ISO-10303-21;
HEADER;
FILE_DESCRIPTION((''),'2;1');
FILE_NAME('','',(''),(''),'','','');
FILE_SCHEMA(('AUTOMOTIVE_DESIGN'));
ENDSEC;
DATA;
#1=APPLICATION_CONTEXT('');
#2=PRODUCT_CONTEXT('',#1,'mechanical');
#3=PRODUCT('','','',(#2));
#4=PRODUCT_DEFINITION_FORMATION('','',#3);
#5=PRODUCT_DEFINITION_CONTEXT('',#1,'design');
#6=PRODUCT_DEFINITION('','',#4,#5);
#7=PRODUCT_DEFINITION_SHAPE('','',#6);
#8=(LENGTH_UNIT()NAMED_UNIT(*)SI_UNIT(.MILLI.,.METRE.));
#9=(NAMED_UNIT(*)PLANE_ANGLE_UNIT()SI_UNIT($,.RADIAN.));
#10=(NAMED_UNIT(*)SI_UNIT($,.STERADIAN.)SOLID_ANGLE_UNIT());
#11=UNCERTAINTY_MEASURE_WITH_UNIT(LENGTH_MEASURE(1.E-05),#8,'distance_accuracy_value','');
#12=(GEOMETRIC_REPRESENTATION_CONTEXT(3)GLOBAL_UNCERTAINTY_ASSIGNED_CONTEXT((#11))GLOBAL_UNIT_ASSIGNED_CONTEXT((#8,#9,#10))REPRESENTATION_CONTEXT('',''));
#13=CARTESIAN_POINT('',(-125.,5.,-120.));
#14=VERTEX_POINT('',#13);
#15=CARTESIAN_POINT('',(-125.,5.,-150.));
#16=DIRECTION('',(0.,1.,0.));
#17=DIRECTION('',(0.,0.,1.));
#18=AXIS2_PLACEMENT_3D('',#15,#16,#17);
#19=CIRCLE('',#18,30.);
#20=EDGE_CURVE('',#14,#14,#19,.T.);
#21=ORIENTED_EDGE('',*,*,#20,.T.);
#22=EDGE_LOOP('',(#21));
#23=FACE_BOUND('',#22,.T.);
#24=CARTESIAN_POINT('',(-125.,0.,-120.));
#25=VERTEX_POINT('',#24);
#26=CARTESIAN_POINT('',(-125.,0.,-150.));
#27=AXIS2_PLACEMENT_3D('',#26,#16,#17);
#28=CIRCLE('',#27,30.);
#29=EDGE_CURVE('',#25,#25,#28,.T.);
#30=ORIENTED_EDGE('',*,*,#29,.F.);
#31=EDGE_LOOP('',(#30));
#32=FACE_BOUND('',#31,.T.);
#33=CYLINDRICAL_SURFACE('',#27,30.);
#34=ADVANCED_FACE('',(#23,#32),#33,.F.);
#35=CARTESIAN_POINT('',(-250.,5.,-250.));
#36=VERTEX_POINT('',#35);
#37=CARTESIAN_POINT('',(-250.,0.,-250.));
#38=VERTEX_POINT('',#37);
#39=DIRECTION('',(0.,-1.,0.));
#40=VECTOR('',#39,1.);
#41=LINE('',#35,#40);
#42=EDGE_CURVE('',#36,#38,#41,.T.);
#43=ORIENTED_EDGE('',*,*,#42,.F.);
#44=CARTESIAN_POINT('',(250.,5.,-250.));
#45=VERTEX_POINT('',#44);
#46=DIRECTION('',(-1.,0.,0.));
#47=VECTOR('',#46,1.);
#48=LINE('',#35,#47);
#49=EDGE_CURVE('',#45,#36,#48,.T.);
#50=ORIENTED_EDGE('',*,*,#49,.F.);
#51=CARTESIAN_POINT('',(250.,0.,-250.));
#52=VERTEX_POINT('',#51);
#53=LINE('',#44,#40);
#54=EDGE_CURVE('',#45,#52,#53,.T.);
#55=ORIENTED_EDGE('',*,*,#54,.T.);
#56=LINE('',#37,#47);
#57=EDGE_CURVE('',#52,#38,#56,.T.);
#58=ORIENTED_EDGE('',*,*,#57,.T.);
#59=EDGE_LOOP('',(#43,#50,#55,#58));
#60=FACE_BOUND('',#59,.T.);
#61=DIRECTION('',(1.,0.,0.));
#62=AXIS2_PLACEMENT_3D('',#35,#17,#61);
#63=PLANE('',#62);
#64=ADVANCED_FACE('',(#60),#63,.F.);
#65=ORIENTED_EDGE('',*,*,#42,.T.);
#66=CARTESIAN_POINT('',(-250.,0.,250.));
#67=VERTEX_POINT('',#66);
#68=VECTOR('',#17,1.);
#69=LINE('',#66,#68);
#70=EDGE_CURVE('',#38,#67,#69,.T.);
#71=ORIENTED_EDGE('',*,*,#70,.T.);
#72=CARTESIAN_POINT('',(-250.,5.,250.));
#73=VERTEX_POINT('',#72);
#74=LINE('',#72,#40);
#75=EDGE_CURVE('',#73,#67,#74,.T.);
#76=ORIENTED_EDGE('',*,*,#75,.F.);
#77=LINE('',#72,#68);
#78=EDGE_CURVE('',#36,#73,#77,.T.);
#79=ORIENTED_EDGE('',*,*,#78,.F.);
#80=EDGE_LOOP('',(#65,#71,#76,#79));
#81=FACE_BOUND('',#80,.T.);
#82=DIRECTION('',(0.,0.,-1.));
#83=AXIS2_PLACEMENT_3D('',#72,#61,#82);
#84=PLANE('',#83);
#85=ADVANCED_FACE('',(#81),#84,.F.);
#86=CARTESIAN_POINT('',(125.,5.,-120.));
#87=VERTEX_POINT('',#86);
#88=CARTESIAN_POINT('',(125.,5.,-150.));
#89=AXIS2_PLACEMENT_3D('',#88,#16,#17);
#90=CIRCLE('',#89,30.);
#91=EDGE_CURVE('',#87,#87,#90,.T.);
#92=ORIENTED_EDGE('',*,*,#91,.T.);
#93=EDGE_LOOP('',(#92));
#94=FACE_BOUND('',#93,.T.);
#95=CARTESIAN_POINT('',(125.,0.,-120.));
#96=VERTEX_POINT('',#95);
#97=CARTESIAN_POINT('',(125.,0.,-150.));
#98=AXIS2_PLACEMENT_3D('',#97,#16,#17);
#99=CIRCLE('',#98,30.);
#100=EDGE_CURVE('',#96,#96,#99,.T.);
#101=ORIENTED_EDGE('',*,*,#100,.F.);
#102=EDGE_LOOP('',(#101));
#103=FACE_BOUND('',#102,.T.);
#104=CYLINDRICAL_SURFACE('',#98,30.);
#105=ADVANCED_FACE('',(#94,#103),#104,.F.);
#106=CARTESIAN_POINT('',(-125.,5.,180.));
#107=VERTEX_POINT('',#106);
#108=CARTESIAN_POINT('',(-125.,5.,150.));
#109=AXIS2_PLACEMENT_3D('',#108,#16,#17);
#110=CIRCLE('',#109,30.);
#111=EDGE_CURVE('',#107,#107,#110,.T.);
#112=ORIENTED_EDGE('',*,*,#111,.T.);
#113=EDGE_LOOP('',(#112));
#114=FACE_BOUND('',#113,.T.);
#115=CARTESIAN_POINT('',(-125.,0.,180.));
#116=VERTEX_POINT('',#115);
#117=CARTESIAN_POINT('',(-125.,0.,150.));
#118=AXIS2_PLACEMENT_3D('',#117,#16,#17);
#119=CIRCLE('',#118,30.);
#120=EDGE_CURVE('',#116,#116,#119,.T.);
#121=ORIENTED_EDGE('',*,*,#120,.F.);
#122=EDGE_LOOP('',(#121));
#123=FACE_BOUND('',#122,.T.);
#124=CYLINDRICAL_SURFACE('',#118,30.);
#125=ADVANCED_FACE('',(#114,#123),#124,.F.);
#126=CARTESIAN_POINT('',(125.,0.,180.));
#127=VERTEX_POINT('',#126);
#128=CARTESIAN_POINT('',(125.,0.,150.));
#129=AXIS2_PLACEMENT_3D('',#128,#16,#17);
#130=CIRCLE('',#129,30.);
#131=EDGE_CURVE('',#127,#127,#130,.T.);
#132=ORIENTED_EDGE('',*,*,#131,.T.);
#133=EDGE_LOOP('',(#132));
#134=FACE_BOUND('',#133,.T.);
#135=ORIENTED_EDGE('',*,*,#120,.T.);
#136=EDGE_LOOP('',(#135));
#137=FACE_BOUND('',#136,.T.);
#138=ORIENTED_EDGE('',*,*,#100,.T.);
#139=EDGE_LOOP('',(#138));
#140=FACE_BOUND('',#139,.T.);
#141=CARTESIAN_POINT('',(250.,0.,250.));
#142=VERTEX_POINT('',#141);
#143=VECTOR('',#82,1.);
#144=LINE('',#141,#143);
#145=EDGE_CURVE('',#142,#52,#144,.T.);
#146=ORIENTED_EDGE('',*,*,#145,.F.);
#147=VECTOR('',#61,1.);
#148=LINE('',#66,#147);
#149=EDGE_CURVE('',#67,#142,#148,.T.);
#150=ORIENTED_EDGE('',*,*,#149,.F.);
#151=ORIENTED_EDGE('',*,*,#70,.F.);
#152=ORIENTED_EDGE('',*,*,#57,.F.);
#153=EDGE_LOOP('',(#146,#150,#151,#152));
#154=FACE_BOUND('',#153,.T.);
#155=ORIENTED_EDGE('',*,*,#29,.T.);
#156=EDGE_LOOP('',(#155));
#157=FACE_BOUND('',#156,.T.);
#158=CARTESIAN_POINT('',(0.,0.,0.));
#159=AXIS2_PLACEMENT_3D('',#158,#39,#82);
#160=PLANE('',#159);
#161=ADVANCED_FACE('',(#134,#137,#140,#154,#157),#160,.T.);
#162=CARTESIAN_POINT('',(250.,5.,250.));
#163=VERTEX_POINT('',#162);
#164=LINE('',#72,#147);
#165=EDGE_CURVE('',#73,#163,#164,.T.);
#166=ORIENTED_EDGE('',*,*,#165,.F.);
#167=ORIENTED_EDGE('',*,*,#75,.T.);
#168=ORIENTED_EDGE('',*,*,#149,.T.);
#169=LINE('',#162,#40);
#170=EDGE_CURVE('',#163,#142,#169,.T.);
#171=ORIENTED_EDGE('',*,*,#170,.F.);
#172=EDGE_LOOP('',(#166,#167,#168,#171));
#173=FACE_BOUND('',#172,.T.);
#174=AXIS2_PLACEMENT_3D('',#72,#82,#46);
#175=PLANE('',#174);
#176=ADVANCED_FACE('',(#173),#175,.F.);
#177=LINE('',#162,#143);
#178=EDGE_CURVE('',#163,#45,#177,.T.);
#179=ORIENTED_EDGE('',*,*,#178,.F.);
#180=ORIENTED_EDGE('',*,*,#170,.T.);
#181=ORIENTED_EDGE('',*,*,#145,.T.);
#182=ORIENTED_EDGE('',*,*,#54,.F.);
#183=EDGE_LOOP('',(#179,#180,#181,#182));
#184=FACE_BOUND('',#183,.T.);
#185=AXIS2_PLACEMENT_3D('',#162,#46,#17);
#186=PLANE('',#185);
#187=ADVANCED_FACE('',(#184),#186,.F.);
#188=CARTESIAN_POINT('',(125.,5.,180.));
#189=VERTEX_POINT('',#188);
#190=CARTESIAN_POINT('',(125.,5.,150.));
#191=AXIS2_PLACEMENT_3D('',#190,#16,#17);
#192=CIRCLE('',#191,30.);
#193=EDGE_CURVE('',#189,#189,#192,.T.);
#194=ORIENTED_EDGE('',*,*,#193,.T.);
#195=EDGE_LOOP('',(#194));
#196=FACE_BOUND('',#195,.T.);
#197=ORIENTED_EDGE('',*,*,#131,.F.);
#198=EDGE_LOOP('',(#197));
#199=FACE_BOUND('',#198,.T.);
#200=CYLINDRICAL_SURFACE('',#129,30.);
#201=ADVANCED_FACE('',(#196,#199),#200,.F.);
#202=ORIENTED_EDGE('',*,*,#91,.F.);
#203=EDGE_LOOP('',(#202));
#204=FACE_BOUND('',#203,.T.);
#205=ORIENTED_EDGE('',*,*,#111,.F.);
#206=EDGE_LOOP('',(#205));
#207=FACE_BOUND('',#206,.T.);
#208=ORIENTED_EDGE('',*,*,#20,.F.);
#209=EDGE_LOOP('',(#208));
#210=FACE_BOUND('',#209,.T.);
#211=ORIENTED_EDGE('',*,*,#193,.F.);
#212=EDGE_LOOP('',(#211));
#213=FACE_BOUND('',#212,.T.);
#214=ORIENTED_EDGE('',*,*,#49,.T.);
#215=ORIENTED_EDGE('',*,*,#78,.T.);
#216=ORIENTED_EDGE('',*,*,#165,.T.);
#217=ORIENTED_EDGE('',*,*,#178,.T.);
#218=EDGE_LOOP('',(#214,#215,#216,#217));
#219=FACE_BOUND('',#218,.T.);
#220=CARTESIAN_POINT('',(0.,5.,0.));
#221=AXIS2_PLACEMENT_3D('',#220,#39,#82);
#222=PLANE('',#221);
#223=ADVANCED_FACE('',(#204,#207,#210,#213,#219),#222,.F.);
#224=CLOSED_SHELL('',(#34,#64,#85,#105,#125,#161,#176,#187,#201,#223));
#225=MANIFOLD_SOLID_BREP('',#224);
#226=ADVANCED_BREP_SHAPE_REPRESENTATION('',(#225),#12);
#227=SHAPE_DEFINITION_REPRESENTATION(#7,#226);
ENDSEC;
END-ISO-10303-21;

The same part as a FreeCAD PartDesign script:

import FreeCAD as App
import Part
import Sketcher


def add_polygon(sketch, points):
    """Adds a closed chain of lines whose ends are joined by coincident constraints."""
    first, n = sketch.GeometryCount, len(points)
    for a, b in zip(points, points[1:] + points[:1]):
        sketch.addGeometry(Part.LineSegment(App.Vector(*a, 0), App.Vector(*b, 0)), False)
    for i in range(n):
        sketch.addConstraint(Sketcher.Constraint("Coincident", first + i, 2, first + (i + 1) % n, 1))

doc = App.newDocument("Part")
params = doc.addObject("Spreadsheet::Sheet", "Params")
for row, (alias, value) in enumerate([
    ("sketch1_width", "500 mm"),
    ("pad1_length", "5 mm"),
    ("sketch2_diameter", "60 mm"),
], start=1):
    params.set(f"A{row}", alias)
    params.set(f"B{row}", "=" + value)
    params.setAlias(f"B{row}", alias)

body = doc.addObject("PartDesign::Body", "Body")

# Sketch on XZ plane
sketch1 = body.newObject("Sketcher::SketchObject", "Sketch")
sketch1.AttachmentSupport = (doc.getObject("XZ_Plane"), [""])
sketch1.MapMode = "FlatFace"
add_polygon(sketch1, [(-250, -250), (-250, 250), (250, 250), (250, -250)])  # lines 0-3
sketch1.addConstraint([
    Sketcher.Constraint("Vertical", 0),
    Sketcher.Constraint("Horizontal", 1),
    Sketcher.Constraint("Vertical", 2),
    Sketcher.Constraint("Horizontal", 3),
    Sketcher.Constraint("Symmetric", 0, 2, 2, 2, -1, 1),
    Sketcher.Constraint("Equal", 3, 0),
    Sketcher.Constraint("DistanceX", 1, 1, 1, 2, 500.0),
])
sketch1.setExpression("Constraints[10]", "Params.sketch1_width")
pad1 = body.newObject("PartDesign::Pad", "Pad")
pad1.Profile = sketch1
pad1.setExpression("Length", "Params.pad1_length")
pad1.Reversed = True

# Sketch on XZ plane
sketch2 = body.newObject("Sketcher::SketchObject", "Sketch001")
sketch2.AttachmentSupport = (doc.getObject("XZ_Plane"), [""])
sketch2.MapMode = "FlatFace"
sketch2.AttachmentOffset = App.Placement(App.Vector(0, 0, -5), App.Rotation())
sketch2.addGeometry([
    Part.Circle(App.Vector(-125, 150, 0), App.Vector(0, 0, 1), 30),
    Part.Circle(App.Vector(125, 150, 0), App.Vector(0, 0, 1), 30),
    Part.Circle(App.Vector(125, -150, 0), App.Vector(0, 0, 1), 30),
    Part.Circle(App.Vector(-125, -150, 0), App.Vector(0, 0, 1), 30),
], False)
sketch2.addConstraint([
    Sketcher.Constraint("Equal", 0, 1),
    Sketcher.Constraint("Equal", 1, 2),
    Sketcher.Constraint("Equal", 2, 3),
    Sketcher.Constraint("Symmetric", 0, 3, 2, 3, -1, 1),
    Sketcher.Constraint("Symmetric", 1, 3, 3, 3, -1, 1),
    Sketcher.Constraint("Symmetric", 0, 3, 1, 3, -2),
    Sketcher.Constraint("Diameter", 0, 60.0),
    Sketcher.Constraint("DistanceX", 0, 3, -1, 1, 125.0),
    Sketcher.Constraint("DistanceY", -1, 1, 0, 3, 150.0),
])
sketch2.setExpression("Constraints[6]", "Params.sketch2_diameter")
pocket1 = body.newObject("PartDesign::Pocket", "Pocket")
pocket1.Profile = sketch2
pocket1.Type = "ThroughAll"
pocket1.Midplane = True

doc.recompute()
